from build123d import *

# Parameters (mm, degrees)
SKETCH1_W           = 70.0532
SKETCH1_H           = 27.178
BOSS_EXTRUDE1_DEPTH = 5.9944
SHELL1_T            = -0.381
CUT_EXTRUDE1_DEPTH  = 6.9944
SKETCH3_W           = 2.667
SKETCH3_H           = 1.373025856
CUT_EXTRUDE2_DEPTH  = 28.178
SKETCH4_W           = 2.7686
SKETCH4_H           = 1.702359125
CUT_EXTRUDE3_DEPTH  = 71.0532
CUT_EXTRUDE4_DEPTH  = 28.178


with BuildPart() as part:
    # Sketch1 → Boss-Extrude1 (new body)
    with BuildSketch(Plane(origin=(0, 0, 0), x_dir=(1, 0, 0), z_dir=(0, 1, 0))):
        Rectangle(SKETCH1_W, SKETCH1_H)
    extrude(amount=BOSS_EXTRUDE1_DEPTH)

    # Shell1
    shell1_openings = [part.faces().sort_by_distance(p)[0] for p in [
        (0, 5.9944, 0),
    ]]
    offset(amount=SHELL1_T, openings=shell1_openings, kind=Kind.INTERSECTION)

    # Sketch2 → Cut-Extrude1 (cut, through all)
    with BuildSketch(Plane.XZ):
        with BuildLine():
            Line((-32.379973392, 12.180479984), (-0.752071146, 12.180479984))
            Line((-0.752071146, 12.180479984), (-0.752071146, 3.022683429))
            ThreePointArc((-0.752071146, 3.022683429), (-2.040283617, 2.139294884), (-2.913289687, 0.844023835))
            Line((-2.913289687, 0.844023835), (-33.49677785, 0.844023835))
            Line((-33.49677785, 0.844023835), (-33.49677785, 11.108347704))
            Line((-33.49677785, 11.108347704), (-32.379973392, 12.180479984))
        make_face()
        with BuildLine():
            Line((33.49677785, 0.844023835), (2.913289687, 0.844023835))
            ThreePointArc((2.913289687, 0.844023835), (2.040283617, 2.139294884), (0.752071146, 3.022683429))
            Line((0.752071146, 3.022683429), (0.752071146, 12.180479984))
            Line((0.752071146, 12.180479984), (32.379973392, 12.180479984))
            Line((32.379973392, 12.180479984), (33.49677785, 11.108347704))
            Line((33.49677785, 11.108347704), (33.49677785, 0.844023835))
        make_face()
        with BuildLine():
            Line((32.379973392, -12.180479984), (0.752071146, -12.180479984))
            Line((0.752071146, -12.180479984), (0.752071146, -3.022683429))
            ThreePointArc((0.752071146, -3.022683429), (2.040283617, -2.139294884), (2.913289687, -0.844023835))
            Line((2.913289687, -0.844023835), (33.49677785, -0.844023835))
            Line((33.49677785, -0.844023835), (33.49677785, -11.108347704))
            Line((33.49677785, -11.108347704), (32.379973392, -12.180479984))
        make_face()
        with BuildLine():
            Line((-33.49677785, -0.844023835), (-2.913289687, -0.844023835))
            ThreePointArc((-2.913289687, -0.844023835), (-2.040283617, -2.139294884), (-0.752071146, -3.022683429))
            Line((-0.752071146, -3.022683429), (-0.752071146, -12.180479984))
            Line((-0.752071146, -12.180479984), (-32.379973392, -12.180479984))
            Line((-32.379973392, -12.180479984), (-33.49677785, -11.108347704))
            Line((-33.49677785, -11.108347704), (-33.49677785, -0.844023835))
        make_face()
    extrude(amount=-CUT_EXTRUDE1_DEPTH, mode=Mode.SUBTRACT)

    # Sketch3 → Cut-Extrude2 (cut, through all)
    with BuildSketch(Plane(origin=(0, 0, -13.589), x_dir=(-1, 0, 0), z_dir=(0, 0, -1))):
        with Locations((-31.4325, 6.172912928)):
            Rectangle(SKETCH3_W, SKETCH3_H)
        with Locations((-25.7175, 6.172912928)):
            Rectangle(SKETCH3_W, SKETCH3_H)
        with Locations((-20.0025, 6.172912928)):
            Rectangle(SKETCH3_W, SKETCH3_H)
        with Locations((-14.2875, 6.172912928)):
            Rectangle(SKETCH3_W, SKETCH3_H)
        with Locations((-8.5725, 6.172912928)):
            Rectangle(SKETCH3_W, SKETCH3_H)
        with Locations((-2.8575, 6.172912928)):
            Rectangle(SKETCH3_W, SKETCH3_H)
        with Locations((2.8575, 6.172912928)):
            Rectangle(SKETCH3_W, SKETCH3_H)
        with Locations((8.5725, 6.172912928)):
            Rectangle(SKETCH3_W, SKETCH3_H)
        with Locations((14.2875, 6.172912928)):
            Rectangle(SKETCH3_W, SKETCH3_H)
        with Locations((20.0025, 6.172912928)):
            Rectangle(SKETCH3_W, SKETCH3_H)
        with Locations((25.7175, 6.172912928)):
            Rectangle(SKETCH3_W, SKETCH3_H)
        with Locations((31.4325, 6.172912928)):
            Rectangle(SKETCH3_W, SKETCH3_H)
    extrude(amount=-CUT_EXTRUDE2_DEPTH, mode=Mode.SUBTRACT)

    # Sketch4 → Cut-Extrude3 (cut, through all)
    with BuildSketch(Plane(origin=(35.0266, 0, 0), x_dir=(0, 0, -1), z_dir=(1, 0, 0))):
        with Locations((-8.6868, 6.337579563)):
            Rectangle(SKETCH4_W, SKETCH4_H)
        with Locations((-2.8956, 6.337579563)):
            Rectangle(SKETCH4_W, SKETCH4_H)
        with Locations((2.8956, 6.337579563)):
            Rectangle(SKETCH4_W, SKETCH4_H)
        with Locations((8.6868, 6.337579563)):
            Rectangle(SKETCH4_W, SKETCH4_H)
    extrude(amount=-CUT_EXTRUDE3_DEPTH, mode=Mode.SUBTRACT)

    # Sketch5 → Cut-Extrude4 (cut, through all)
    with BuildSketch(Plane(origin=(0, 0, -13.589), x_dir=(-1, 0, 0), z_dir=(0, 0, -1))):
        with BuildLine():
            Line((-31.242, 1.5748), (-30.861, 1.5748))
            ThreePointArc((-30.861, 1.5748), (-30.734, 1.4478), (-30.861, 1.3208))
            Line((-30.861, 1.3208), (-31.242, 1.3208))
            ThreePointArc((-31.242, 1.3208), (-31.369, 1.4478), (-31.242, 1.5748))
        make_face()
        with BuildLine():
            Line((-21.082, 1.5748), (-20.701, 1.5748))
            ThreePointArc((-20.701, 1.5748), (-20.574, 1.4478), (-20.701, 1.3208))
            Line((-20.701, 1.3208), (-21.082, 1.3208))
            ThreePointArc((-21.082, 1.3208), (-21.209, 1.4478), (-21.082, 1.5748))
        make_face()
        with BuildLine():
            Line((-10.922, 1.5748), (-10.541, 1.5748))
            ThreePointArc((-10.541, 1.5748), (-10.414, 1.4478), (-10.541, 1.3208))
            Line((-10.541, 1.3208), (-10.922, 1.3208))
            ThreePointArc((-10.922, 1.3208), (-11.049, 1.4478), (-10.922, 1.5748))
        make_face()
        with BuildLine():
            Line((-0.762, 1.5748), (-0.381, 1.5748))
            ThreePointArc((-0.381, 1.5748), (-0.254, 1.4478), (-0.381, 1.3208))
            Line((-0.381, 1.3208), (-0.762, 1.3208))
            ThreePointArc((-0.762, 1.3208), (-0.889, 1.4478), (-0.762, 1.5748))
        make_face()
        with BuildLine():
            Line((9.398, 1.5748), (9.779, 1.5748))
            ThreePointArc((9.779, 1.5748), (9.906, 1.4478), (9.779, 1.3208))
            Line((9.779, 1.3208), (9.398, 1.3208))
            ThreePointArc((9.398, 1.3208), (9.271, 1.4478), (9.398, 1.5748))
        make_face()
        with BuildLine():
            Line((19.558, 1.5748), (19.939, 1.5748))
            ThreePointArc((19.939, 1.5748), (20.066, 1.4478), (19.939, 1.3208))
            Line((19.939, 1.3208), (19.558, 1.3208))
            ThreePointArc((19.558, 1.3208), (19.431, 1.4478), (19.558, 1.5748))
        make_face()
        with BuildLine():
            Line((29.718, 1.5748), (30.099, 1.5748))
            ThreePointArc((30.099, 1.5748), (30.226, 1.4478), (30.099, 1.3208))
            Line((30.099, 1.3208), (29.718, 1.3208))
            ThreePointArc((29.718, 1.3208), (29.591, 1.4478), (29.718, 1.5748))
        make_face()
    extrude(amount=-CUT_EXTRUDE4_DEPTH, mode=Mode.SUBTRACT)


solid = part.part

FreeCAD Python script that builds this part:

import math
import FreeCAD as App
import Part
import Sketcher
from FreeCAD import Vector
Q = App.Units.Quantity


def faces_at(feature, points):
    """Names of the faces that lie closest to the given points."""
    faces = feature.Shape.Faces
    near = lambda p: min(range(len(faces)), key=lambda i: faces[i].distToShape(Part.Vertex(*p))[0])
    return sorted({f"Face{near(p) + 1}" for p in points})


def add_polygon(sketch, points):
    """Adds a closed chain of lines whose ends are joined by coincident constraints."""
    first, n = sketch.GeometryCount, len(points)
    for a, b in zip(points, points[1:] + points[:1]):
        sketch.addGeometry(Part.LineSegment(App.Vector(*a, 0), App.Vector(*b, 0)), False)
    for i in range(n):
        sketch.addConstraint(Sketcher.Constraint("Coincident", first + i, 2, first + (i + 1) % n, 1))

doc = App.newDocument("Part")
body = doc.addObject("PartDesign::Body", "Body")

sketch1 = body.newObject("Sketcher::SketchObject", "Sketch")
sketch1.AttachmentSupport = (doc.getObject("XZ_Plane"), [""])
sketch1.MapMode = "FlatFace"
add_polygon(sketch1, [(-35.0266, -13.589), (-35.0266, 13.589), (35.0266, 13.589), (35.0266, -13.589)])
sketch1.addConstraint(Sketcher.Constraint("Vertical", 0))
sketch1.addConstraint(Sketcher.Constraint("Horizontal", 1))
sketch1.addConstraint(Sketcher.Constraint("Vertical", 2))
sketch1.addConstraint(Sketcher.Constraint("Horizontal", 3))
sketch1.addConstraint(Sketcher.Constraint("Symmetric", 0, 2, 2, 2, -1, 1))
sketch1.addConstraint(Sketcher.Constraint("DistanceY", 0, 1, 0, 2, Q("1.07 in")))
sketch1.addConstraint(Sketcher.Constraint("DistanceX", 1, 1, 1, 2, Q("2.758 in")))
pad1 = body.newObject("PartDesign::Pad", "Pad")
pad1.Profile = sketch1
pad1.Length = Q("0.236 in")
pad1.Reversed = True
doc.recompute()

thickness = body.newObject("PartDesign::Thickness", "Thickness")
thickness.Base = (pad1, faces_at(pad1, [(0, 5.994, 0)]))
thickness.Value = Q("0.015 in")
thickness.Reversed = True
thickness.Join = "Intersection"

sketch2 = body.newObject("Sketcher::SketchObject", "Sketch001")
sketch2.AttachmentSupport = (doc.getObject("XZ_Plane"), [""])
sketch2.MapMode = "FlatFace"
sketch2.addGeometry(Part.LineSegment(Vector(-0.752071, 12.18048, 0), Vector(-32.379973, 12.18048, 0)), False)
sketch2.addGeometry(Part.LineSegment(Vector(-32.379973, 12.18048, 0), Vector(-33.496778, 11.108348, 0)), False)
sketch2.addGeometry(Part.LineSegment(Vector(-33.496778, 11.108348, 0), Vector(-33.496778, 0.844024, 0)), False)
sketch2.addGeometry(Part.LineSegment(Vector(-33.496778, 0.844024, 0), Vector(-2.91329, 0.844024, 0)), False)
sketch2.addGeometry(Part.ArcOfCircle(Part.Circle(Vector(0.921469, -0.798747, 0), Vector(0, 0, 1), 4.171818), math.radians(113.650313), math.radians(156.810204)), False)
sketch2.addGeometry(Part.LineSegment(Vector(-0.752071, 3.022683, 0), Vector(-0.752071, 12.18048, 0)), False)
sketch2.addGeometry(Part.LineSegment(Vector(2.91329, 0.844024, 0), Vector(33.496778, 0.844024, 0)), False)
sketch2.addGeometry(Part.LineSegment(Vector(33.496778, 0.844024, 0), Vector(33.496778, 11.108348, 0)), False)
sketch2.addGeometry(Part.LineSegment(Vector(33.496778, 11.108348, 0), Vector(32.379973, 12.18048, 0)), False)
sketch2.addGeometry(Part.LineSegment(Vector(32.379973, 12.18048, 0), Vector(0.752071, 12.18048, 0)), False)
sketch2.addGeometry(Part.LineSegment(Vector(0.752071, 12.18048, 0), Vector(0.752071, 3.022683, 0)), False)
sketch2.addGeometry(Part.ArcOfCircle(Part.Circle(Vector(-0.921469, -0.798747, 0), Vector(0, 0, 1), 4.171818), math.radians(23.189796), math.radians(66.349687)), False)
sketch2.addGeometry(Part.LineSegment(Vector(0.752071, -12.18048, 0), Vector(32.379973, -12.18048, 0)), False)
sketch2.addGeometry(Part.LineSegment(Vector(32.379973, -12.18048, 0), Vector(33.496778, -11.108348, 0)), False)
sketch2.addGeometry(Part.LineSegment(Vector(33.496778, -11.108348, 0), Vector(33.496778, -0.844024, 0)), False)
sketch2.addGeometry(Part.LineSegment(Vector(33.496778, -0.844024, 0), Vector(2.91329, -0.844024, 0)), False)
sketch2.addGeometry(Part.ArcOfCircle(Part.Circle(Vector(-0.921469, 0.798747, 0), Vector(0, 0, 1), 4.171818), math.radians(-66.349687), math.radians(-23.189796)), False)
sketch2.addGeometry(Part.LineSegment(Vector(0.752071, -3.022683, 0), Vector(0.752071, -12.18048, 0)), False)
sketch2.addGeometry(Part.LineSegment(Vector(-2.91329, -0.844024, 0), Vector(-33.496778, -0.844024, 0)), False)
sketch2.addGeometry(Part.LineSegment(Vector(-33.496778, -0.844024, 0), Vector(-33.496778, -11.108348, 0)), False)
sketch2.addGeometry(Part.LineSegment(Vector(-33.496778, -11.108348, 0), Vector(-32.379973, -12.18048, 0)), False)
sketch2.addGeometry(Part.LineSegment(Vector(-32.379973, -12.18048, 0), Vector(-0.752071, -12.18048, 0)), False)
sketch2.addGeometry(Part.LineSegment(Vector(-0.752071, -12.18048, 0), Vector(-0.752071, -3.022683, 0)), False)
sketch2.addGeometry(Part.ArcOfCircle(Part.Circle(Vector(0.921469, 0.798747, 0), Vector(0, 0, 1), 4.171818), math.radians(-156.810204), math.radians(-113.650313)), False)
sketch2.addConstraint(Sketcher.Constraint("Coincident", 0, 2, 1, 1))
sketch2.addConstraint(Sketcher.Constraint("Coincident", 1, 2, 2, 1))
sketch2.addConstraint(Sketcher.Constraint("Coincident", 2, 2, 3, 1))
sketch2.addConstraint(Sketcher.Constraint("Coincident", 3, 2, 4, 2))
sketch2.addConstraint(Sketcher.Constraint("Coincident", 4, 1, 5, 1))
sketch2.addConstraint(Sketcher.Constraint("Coincident", 5, 2, 0, 1))
sketch2.addConstraint(Sketcher.Constraint("Coincident", 6, 2, 7, 1))
sketch2.addConstraint(Sketcher.Constraint("Coincident", 7, 2, 8, 1))
sketch2.addConstraint(Sketcher.Constraint("Coincident", 8, 2, 9, 1))
sketch2.addConstraint(Sketcher.Constraint("Coincident", 9, 2, 10, 1))
sketch2.addConstraint(Sketcher.Constraint("Coincident", 10, 2, 11, 2))
sketch2.addConstraint(Sketcher.Constraint("Coincident", 11, 1, 6, 1))
sketch2.addConstraint(Sketcher.Constraint("Coincident", 12, 2, 13, 1))
sketch2.addConstraint(Sketcher.Constraint("Coincident", 13, 2, 14, 1))
sketch2.addConstraint(Sketcher.Constraint("Coincident", 14, 2, 15, 1))
sketch2.addConstraint(Sketcher.Constraint("Coincident", 15, 2, 16, 2))
sketch2.addConstraint(Sketcher.Constraint("Coincident", 16, 1, 17, 1))
sketch2.addConstraint(Sketcher.Constraint("Coincident", 17, 2, 12, 1))
sketch2.addConstraint(Sketcher.Constraint("Coincident", 18, 2, 19, 1))
sketch2.addConstraint(Sketcher.Constraint("Coincident", 19, 2, 20, 1))
sketch2.addConstraint(Sketcher.Constraint("Coincident", 20, 2, 21, 1))
sketch2.addConstraint(Sketcher.Constraint("Coincident", 21, 2, 22, 1))
sketch2.addConstraint(Sketcher.Constraint("Coincident", 22, 2, 23, 2))
sketch2.addConstraint(Sketcher.Constraint("Coincident", 23, 1, 18, 1))
sketch2.addConstraint(Sketcher.Constraint("Horizontal", 0))
sketch2.addConstraint(Sketcher.Constraint("Vertical", 2))
sketch2.addConstraint(Sketcher.Constraint("Horizontal", 3))
sketch2.addConstraint(Sketcher.Constraint("Vertical", 5))
sketch2.addConstraint(Sketcher.Constraint("Horizontal", 6))
sketch2.addConstraint(Sketcher.Constraint("Vertical", 7))
sketch2.addConstraint(Sketcher.Constraint("Horizontal", 9))
sketch2.addConstraint(Sketcher.Constraint("Vertical", 10))
sketch2.addConstraint(Sketcher.Constraint("Horizontal", 12))
sketch2.addConstraint(Sketcher.Constraint("Vertical", 14))
sketch2.addConstraint(Sketcher.Constraint("Horizontal", 15))
sketch2.addConstraint(Sketcher.Constraint("Vertical", 17))
sketch2.addConstraint(Sketcher.Constraint("Horizontal", 18))
sketch2.addConstraint(Sketcher.Constraint("Vertical", 19))
sketch2.addConstraint(Sketcher.Constraint("Horizontal", 21))
sketch2.addConstraint(Sketcher.Constraint("Vertical", 22))
sketch2.addConstraint(Sketcher.Constraint("Equal", 4, 11))
sketch2.addConstraint(Sketcher.Constraint("Equal", 11, 16))
sketch2.addConstraint(Sketcher.Constraint("Equal", 16, 23))
sketch2.addConstraint(Sketcher.Constraint("Symmetric", 4, 3, 16, 3, -1, 1))
sketch2.addConstraint(Sketcher.Constraint("Symmetric", 11, 3, 23, 3, -1, 1))
sketch2.addConstraint(Sketcher.Constraint("Symmetric", 0, 2, 12, 2, -1, 1))
sketch2.addConstraint(Sketcher.Constraint("Symmetric", 1, 2, 13, 2, -1, 1))
sketch2.addConstraint(Sketcher.Constraint("Symmetric", 6, 2, 18, 2, -1, 1))
sketch2.addConstraint(Sketcher.Constraint("Symmetric", 8, 2, 20, 2, -1, 1))
sketch2.addConstraint(Sketcher.Constraint("Symmetric", 4, 3, 11, 3, -2))
sketch2.addConstraint(Sketcher.Constraint("Symmetric", 2, 2, 6, 2, -2))
sketch2.addConstraint(Sketcher.Constraint("Symmetric", 0, 2, 8, 2, -2))
sketch2.addConstraint(Sketcher.Constraint("Parallel", 8, 20))
sketch2.addConstraint(Sketcher.Constraint("Horizontal", 1, 2, 7, 2))
sketch2.addConstraint(Sketcher.Constraint("Horizontal", 4, 1, 10, 2))
sketch2.addConstraint(Sketcher.Constraint("Horizontal", 15, 2, 18, 2))
sketch2.addConstraint(Sketcher.Constraint("Horizontal", 16, 1, 22, 2))
sketch2.addConstraint(Sketcher.Constraint("Vertical", 10, 2, 16, 1))
sketch2.addConstraint(Sketcher.Constraint("Radius", 4, Q("4.171818 mm")))
sketch2.addConstraint(Sketcher.Constraint("DistanceX", 3, 1, 3, 2, Q("30.583488 mm")))
sketch2.addConstraint(Sketcher.Constraint("DistanceY", 16, 3, 1, 2, Q("10.3096 mm")))
sketch2.addConstraint(Sketcher.Constraint("DistanceX", 0, 2, 0, 1, Q("31.627902 mm")))
sketch2.addConstraint(Sketcher.Constraint("DistanceY", 2, 2, 2, 1, Q("10.264324 mm")))
sketch2.addConstraint(Sketcher.Constraint("DistanceY", 5, 1, 5, 2, Q("9.157797 mm")))
sketch2.addConstraint(Sketcher.Constraint("DistanceX", -1, 1, 4, 3, Q("0.921469 mm")))
sketch2.addConstraint(Sketcher.Constraint("DistanceY", -1, 1, 0, 2, Q("12.18048 mm")))
sketch2.addConstraint(Sketcher.Constraint("DistanceX", 3, 2, -1, 1, Q("2.91329 mm")))
pocket1 = body.newObject("PartDesign::Pocket", "Pocket")
pocket1.Profile = sketch2
pocket1.Type = "ThroughAll"

sketch3 = body.newObject("Sketcher::SketchObject", "Sketch002")
sketch3.AttachmentSupport = (doc.getObject("XY_Plane"), [""])
sketch3.MapMode = "FlatFace"
sketch3.AttachmentOffset = App.Placement(Vector(0, 0, -0.535 * 25.4), App.Rotation())
add_polygon(sketch3, [(32.766, 6.859426), (32.766, 5.4864), (30.099, 5.4864), (30.099, 6.859426)])
add_polygon(sketch3, [(27.051, 6.859426), (27.051, 5.4864), (24.384, 5.4864), (24.384, 6.859426)])
add_polygon(sketch3, [(21.336, 6.859426), (21.336, 5.4864), (18.669, 5.4864), (18.669, 6.859426)])
add_polygon(sketch3, [(15.621, 6.859426), (15.621, 5.4864), (12.954, 5.4864), (12.954, 6.859426)])
add_polygon(sketch3, [(9.906, 6.859426), (9.906, 5.4864), (7.239, 5.4864), (7.239, 6.859426)])
add_polygon(sketch3, [(4.191, 6.859426), (4.191, 5.4864), (1.524, 5.4864), (1.524, 6.859426)])
add_polygon(sketch3, [(-1.524, 6.859426), (-1.524, 5.4864), (-4.191, 5.4864), (-4.191, 6.859426)])
add_polygon(sketch3, [(-7.239, 6.859426), (-7.239, 5.4864), (-9.906, 5.4864), (-9.906, 6.859426)])
add_polygon(sketch3, [(-12.954, 6.859426), (-12.954, 5.4864), (-15.621, 5.4864), (-15.621, 6.859426)])
add_polygon(sketch3, [(-18.669, 6.859426), (-18.669, 5.4864), (-21.336, 5.4864), (-21.336, 6.859426)])
add_polygon(sketch3, [(-24.384, 6.859426), (-24.384, 5.4864), (-27.051, 5.4864), (-27.051, 6.859426)])
add_polygon(sketch3, [(-30.099, 6.859426), (-30.099, 5.4864), (-32.766, 5.4864), (-32.766, 6.859426)])
sketch3.addConstraint(Sketcher.Constraint("Vertical", 0))
sketch3.addConstraint(Sketcher.Constraint("Horizontal", 1))
sketch3.addConstraint(Sketcher.Constraint("Vertical", 2))
sketch3.addConstraint(Sketcher.Constraint("Horizontal", 3))
sketch3.addConstraint(Sketcher.Constraint("Vertical", 4))
sketch3.addConstraint(Sketcher.Constraint("Horizontal", 5))
sketch3.addConstraint(Sketcher.Constraint("Vertical", 6))
sketch3.addConstraint(Sketcher.Constraint("Horizontal", 7))
sketch3.addConstraint(Sketcher.Constraint("Vertical", 8))
sketch3.addConstraint(Sketcher.Constraint("Horizontal", 9))
sketch3.addConstraint(Sketcher.Constraint("Vertical", 10))
sketch3.addConstraint(Sketcher.Constraint("Horizontal", 11))
sketch3.addConstraint(Sketcher.Constraint("Vertical", 12))
sketch3.addConstraint(Sketcher.Constraint("Horizontal", 13))
sketch3.addConstraint(Sketcher.Constraint("Vertical", 14))
sketch3.addConstraint(Sketcher.Constraint("Horizontal", 15))
sketch3.addConstraint(Sketcher.Constraint("Vertical", 16))
sketch3.addConstraint(Sketcher.Constraint("Horizontal", 17))
sketch3.addConstraint(Sketcher.Constraint("Vertical", 18))
sketch3.addConstraint(Sketcher.Constraint("Horizontal", 19))
sketch3.addConstraint(Sketcher.Constraint("Vertical", 20))
sketch3.addConstraint(Sketcher.Constraint("Horizontal", 21))
sketch3.addConstraint(Sketcher.Constraint("Vertical", 22))
sketch3.addConstraint(Sketcher.Constraint("Horizontal", 23))
sketch3.addConstraint(Sketcher.Constraint("Vertical", 24))
sketch3.addConstraint(Sketcher.Constraint("Horizontal", 25))
sketch3.addConstraint(Sketcher.Constraint("Vertical", 26))
sketch3.addConstraint(Sketcher.Constraint("Horizontal", 27))
sketch3.addConstraint(Sketcher.Constraint("Vertical", 28))
sketch3.addConstraint(Sketcher.Constraint("Horizontal", 29))
sketch3.addConstraint(Sketcher.Constraint("Vertical", 30))
sketch3.addConstraint(Sketcher.Constraint("Horizontal", 31))
sketch3.addConstraint(Sketcher.Constraint("Vertical", 32))
sketch3.addConstraint(Sketcher.Constraint("Horizontal", 33))
sketch3.addConstraint(Sketcher.Constraint("Vertical", 34))
sketch3.addConstraint(Sketcher.Constraint("Horizontal", 35))
sketch3.addConstraint(Sketcher.Constraint("Vertical", 36))
sketch3.addConstraint(Sketcher.Constraint("Horizontal", 37))
sketch3.addConstraint(Sketcher.Constraint("Vertical", 38))
sketch3.addConstraint(Sketcher.Constraint("Horizontal", 39))
sketch3.addConstraint(Sketcher.Constraint("Vertical", 40))
sketch3.addConstraint(Sketcher.Constraint("Horizontal", 41))
sketch3.addConstraint(Sketcher.Constraint("Vertical", 42))
sketch3.addConstraint(Sketcher.Constraint("Horizontal", 43))
sketch3.addConstraint(Sketcher.Constraint("Vertical", 44))
sketch3.addConstraint(Sketcher.Constraint("Horizontal", 45))
sketch3.addConstraint(Sketcher.Constraint("Vertical", 46))
sketch3.addConstraint(Sketcher.Constraint("Horizontal", 47))
sketch3.addConstraint(Sketcher.Constraint("Symmetric", 21, 2, 24, 2, -2))
sketch3.addConstraint(Sketcher.Constraint("Symmetric", 23, 2, 26, 2, -2))
sketch3.addConstraint(Sketcher.Constraint("Symmetric", 17, 2, 28, 2, -2))
sketch3.addConstraint(Sketcher.Constraint("Symmetric", 19, 2, 30, 2, -2))
sketch3.addConstraint(Sketcher.Constraint("Symmetric", 13, 2, 32, 2, -2))
sketch3.addConstraint(Sketcher.Constraint("Symmetric", 15, 2, 34, 2, -2))
sketch3.addConstraint(Sketcher.Constraint("Symmetric", 9, 2, 36, 2, -2))
sketch3.addConstraint(Sketcher.Constraint("Symmetric", 11, 2, 38, 2, -2))
sketch3.addConstraint(Sketcher.Constraint("Symmetric", 5, 2, 40, 2, -2))
sketch3.addConstraint(Sketcher.Constraint("Symmetric", 7, 2, 42, 2, -2))
sketch3.addConstraint(Sketcher.Constraint("Symmetric", 1, 2, 44, 2, -2))
sketch3.addConstraint(Sketcher.Constraint("Symmetric", 3, 2, 46, 2, -2))
sketch3.addConstraint(Sketcher.Constraint("Horizontal", 1, 2, 4, 2))
sketch3.addConstraint(Sketcher.Constraint("Horizontal", 3, 2, 6, 2))
sketch3.addConstraint(Sketcher.Constraint("Horizontal", 5, 2, 8, 2))
sketch3.addConstraint(Sketcher.Constraint("Horizontal", 7, 2, 10, 2))
sketch3.addConstraint(Sketcher.Constraint("Horizontal", 9, 2, 12, 2))
sketch3.addConstraint(Sketcher.Constraint("Horizontal", 11, 2, 14, 2))
sketch3.addConstraint(Sketcher.Constraint("Horizontal", 13, 2, 16, 2))
sketch3.addConstraint(Sketcher.Constraint("Horizontal", 15, 2, 18, 2))
sketch3.addConstraint(Sketcher.Constraint("Horizontal", 17, 2, 20, 2))
sketch3.addConstraint(Sketcher.Constraint("Horizontal", 19, 2, 22, 2))
sketch3.addConstraint(Sketcher.Constraint("Equal", 3, 5))
sketch3.addConstraint(Sketcher.Constraint("Equal", 7, 9))
sketch3.addConstraint(Sketcher.Constraint("Equal", 11, 13))
sketch3.addConstraint(Sketcher.Constraint("Equal", 15, 17))
sketch3.addConstraint(Sketcher.Constraint("Equal", 19, 21))
sketch3.addConstraint(Sketcher.Constraint("DistanceX", 1, 2, 1, 1, Q("0.105 in")))
sketch3.addConstraint(Sketcher.Constraint("DistanceX", -1, 1, 0, 2, Q("1.29 in")))
sketch3.addConstraint(Sketcher.Constraint("DistanceX", -1, 1, 5, 2, Q("0.96 in")))
sketch3.addConstraint(Sketcher.Constraint("DistanceX", -1, 1, 8, 2, Q("0.84 in")))
sketch3.addConstraint(Sketcher.Constraint("DistanceX", -1, 1, 13, 2, Q("0.51 in")))
sketch3.addConstraint(Sketcher.Constraint("DistanceX", -1, 1, 16, 2, Q("0.39 in")))
sketch3.addConstraint(Sketcher.Constraint("DistanceX", -1, 1, 21, 2, Q("0.06 in")))
sketch3.addConstraint(Sketcher.Constraint("DistanceY", -1, 1, 0, 2, Q("0.216 in")))
sketch3.addConstraint(Sketcher.Constraint("DistanceY", 0, 2, 0, 1, Q("1.373026 mm")))
pocket2 = body.newObject("PartDesign::Pocket", "Pocket001")
pocket2.Profile = sketch3
pocket2.Type = "ThroughAll"
pocket2.Reversed = True

sketch4 = body.newObject("Sketcher::SketchObject", "Sketch003")
sketch4.AttachmentSupport = (doc.getObject("YZ_Plane"), [""])
sketch4.MapMode = "FlatFace"
sketch4.AttachmentOffset = App.Placement(Vector(0, 0, 1.379 * 25.4), App.Rotation())
add_polygon(sketch4, [(7.188759, 10.0711), (5.4864, 10.0711), (5.4864, 7.3025), (7.188759, 7.3025)])
add_polygon(sketch4, [(7.188759, 4.2799), (5.4864, 4.2799), (5.4864, 1.5113), (7.188759, 1.5113)])
add_polygon(sketch4, [(7.188759, -1.5113), (5.4864, -1.5113), (5.4864, -4.2799), (7.188759, -4.2799)])
add_polygon(sketch4, [(7.188759, -7.3025), (5.4864, -7.3025), (5.4864, -10.0711), (7.188759, -10.0711)])
sketch4.addConstraint(Sketcher.Constraint("Horizontal", 0))
sketch4.addConstraint(Sketcher.Constraint("Vertical", 1))
sketch4.addConstraint(Sketcher.Constraint("Horizontal", 2))
sketch4.addConstraint(Sketcher.Constraint("Vertical", 3))
sketch4.addConstraint(Sketcher.Constraint("Horizontal", 4))
sketch4.addConstraint(Sketcher.Constraint("Vertical", 5))
sketch4.addConstraint(Sketcher.Constraint("Horizontal", 6))
sketch4.addConstraint(Sketcher.Constraint("Vertical", 7))
sketch4.addConstraint(Sketcher.Constraint("Horizontal", 8))
sketch4.addConstraint(Sketcher.Constraint("Vertical", 9))
sketch4.addConstraint(Sketcher.Constraint("Horizontal", 10))
sketch4.addConstraint(Sketcher.Constraint("Vertical", 11))
sketch4.addConstraint(Sketcher.Constraint("Horizontal", 12))
sketch4.addConstraint(Sketcher.Constraint("Vertical", 13))
sketch4.addConstraint(Sketcher.Constraint("Horizontal", 14))
sketch4.addConstraint(Sketcher.Constraint("Vertical", 15))
sketch4.addConstraint(Sketcher.Constraint("Symmetric", 5, 2, 8, 2, -1))
sketch4.addConstraint(Sketcher.Constraint("Symmetric", 7, 2, 10, 2, -1))
sketch4.addConstraint(Sketcher.Constraint("Symmetric", 1, 2, 12, 2, -1))
sketch4.addConstraint(Sketcher.Constraint("Symmetric", 3, 2, 14, 2, -1))
sketch4.addConstraint(Sketcher.Constraint("Vertical", 1, 2, 4, 2))
sketch4.addConstraint(Sketcher.Constraint("Vertical", 3, 2, 6, 2))
sketch4.addConstraint(Sketcher.Constraint("Equal", 3, 5))
sketch4.addConstraint(Sketcher.Constraint("DistanceY", 1, 2, 1, 1, Q("0.109 in")))
sketch4.addConstraint(Sketcher.Constraint("DistanceX", -1, 1, 0, 2, Q("0.216 in")))
sketch4.addConstraint(Sketcher.Constraint("DistanceY", 4, 2, 1, 2, Q("0.119 in")))
sketch4.addConstraint(Sketcher.Constraint("DistanceY", 8, 2, 5, 2, Q("0.119 in")))
sketch4.addConstraint(Sketcher.Constraint("DistanceX", 0, 2, 0, 1, Q("1.702359 mm")))
pocket3 = body.newObject("PartDesign::Pocket", "Pocket002")
pocket3.Profile = sketch4
pocket3.Type = "ThroughAll"

sketch5 = body.newObject("Sketcher::SketchObject", "Sketch004")
sketch5.AttachmentSupport = (doc.getObject("XY_Plane"), [""])
sketch5.MapMode = "FlatFace"
sketch5.AttachmentOffset = App.Placement(Vector(0, 0, -0.535 * 25.4), App.Rotation())
sketch5.addGeometry(Part.LineSegment(Vector(30.861, 1.5748, 0), Vector(31.242, 1.5748, 0)), False)
sketch5.addGeometry(Part.ArcOfCircle(Part.Circle(Vector(31.242, 1.4478, 0), Vector(0, 0, 1), 0.127), math.radians(-90), math.radians(90)), False)
sketch5.addGeometry(Part.LineSegment(Vector(31.242, 1.3208, 0), Vector(30.861, 1.3208, 0)), False)
sketch5.addGeometry(Part.ArcOfCircle(Part.Circle(Vector(30.861, 1.4478, 0), Vector(0, 0, 1), 0.127), math.radians(90), math.radians(270)), False)
sketch5.addGeometry(Part.LineSegment(Vector(20.701, 1.5748, 0), Vector(21.082, 1.5748, 0)), False)
sketch5.addGeometry(Part.ArcOfCircle(Part.Circle(Vector(21.082, 1.4478, 0), Vector(0, 0, 1), 0.127), math.radians(-90), math.radians(90)), False)
sketch5.addGeometry(Part.LineSegment(Vector(21.082, 1.3208, 0), Vector(20.701, 1.3208, 0)), False)
sketch5.addGeometry(Part.ArcOfCircle(Part.Circle(Vector(20.701, 1.4478, 0), Vector(0, 0, 1), 0.127), math.radians(90), math.radians(270)), False)
sketch5.addGeometry(Part.LineSegment(Vector(10.541, 1.5748, 0), Vector(10.922, 1.5748, 0)), False)
sketch5.addGeometry(Part.ArcOfCircle(Part.Circle(Vector(10.922, 1.4478, 0), Vector(0, 0, 1), 0.127), math.radians(-90), math.radians(90)), False)
sketch5.addGeometry(Part.LineSegment(Vector(10.922, 1.3208, 0), Vector(10.541, 1.3208, 0)), False)
sketch5.addGeometry(Part.ArcOfCircle(Part.Circle(Vector(10.541, 1.4478, 0), Vector(0, 0, 1), 0.127), math.radians(90), math.radians(270)), False)
sketch5.addGeometry(Part.LineSegment(Vector(0.381, 1.5748, 0), Vector(0.762, 1.5748, 0)), False)
sketch5.addGeometry(Part.ArcOfCircle(Part.Circle(Vector(0.762, 1.4478, 0), Vector(0, 0, 1), 0.127), math.radians(-90), math.radians(90)), False)
sketch5.addGeometry(Part.LineSegment(Vector(0.762, 1.3208, 0), Vector(0.381, 1.3208, 0)), False)
sketch5.addGeometry(Part.ArcOfCircle(Part.Circle(Vector(0.381, 1.4478, 0), Vector(0, 0, 1), 0.127), math.radians(90), math.radians(270)), False)
sketch5.addGeometry(Part.LineSegment(Vector(-9.779, 1.5748, 0), Vector(-9.398, 1.5748, 0)), False)
sketch5.addGeometry(Part.ArcOfCircle(Part.Circle(Vector(-9.398, 1.4478, 0), Vector(0, 0, 1), 0.127), math.radians(-90), math.radians(90)), False)
sketch5.addGeometry(Part.LineSegment(Vector(-9.398, 1.3208, 0), Vector(-9.779, 1.3208, 0)), False)
sketch5.addGeometry(Part.ArcOfCircle(Part.Circle(Vector(-9.779, 1.4478, 0), Vector(0, 0, 1), 0.127), math.radians(90), math.radians(270)), False)
sketch5.addGeometry(Part.LineSegment(Vector(-19.939, 1.5748, 0), Vector(-19.558, 1.5748, 0)), False)
sketch5.addGeometry(Part.ArcOfCircle(Part.Circle(Vector(-19.558, 1.4478, 0), Vector(0, 0, 1), 0.127), math.radians(-90), math.radians(90)), False)
sketch5.addGeometry(Part.LineSegment(Vector(-19.558, 1.3208, 0), Vector(-19.939, 1.3208, 0)), False)
sketch5.addGeometry(Part.ArcOfCircle(Part.Circle(Vector(-19.939, 1.4478, 0), Vector(0, 0, 1), 0.127), math.radians(90), math.radians(270)), False)
sketch5.addGeometry(Part.LineSegment(Vector(-30.099, 1.5748, 0), Vector(-29.718, 1.5748, 0)), False)
sketch5.addGeometry(Part.ArcOfCircle(Part.Circle(Vector(-29.718, 1.4478, 0), Vector(0, 0, 1), 0.127), math.radians(-90), math.radians(90)), False)
sketch5.addGeometry(Part.LineSegment(Vector(-29.718, 1.3208, 0), Vector(-30.099, 1.3208, 0)), False)
sketch5.addGeometry(Part.ArcOfCircle(Part.Circle(Vector(-30.099, 1.4478, 0), Vector(0, 0, 1), 0.127), math.radians(90), math.radians(270)), False)
sketch5.addConstraint(Sketcher.Constraint("Tangent", 0, 2, 1, 2))
sketch5.addConstraint(Sketcher.Constraint("Tangent", 1, 1, 2, 1))
sketch5.addConstraint(Sketcher.Constraint("Tangent", 2, 2, 3, 2))
sketch5.addConstraint(Sketcher.Constraint("Tangent", 3, 1, 0, 1))
sketch5.addConstraint(Sketcher.Constraint("Tangent", 4, 2, 5, 2))
sketch5.addConstraint(Sketcher.Constraint("Tangent", 5, 1, 6, 1))
sketch5.addConstraint(Sketcher.Constraint("Tangent", 6, 2, 7, 2))
sketch5.addConstraint(Sketcher.Constraint("Tangent", 7, 1, 4, 1))
sketch5.addConstraint(Sketcher.Constraint("Tangent", 8, 2, 9, 2))
sketch5.addConstraint(Sketcher.Constraint("Tangent", 9, 1, 10, 1))
sketch5.addConstraint(Sketcher.Constraint("Tangent", 10, 2, 11, 2))
sketch5.addConstraint(Sketcher.Constraint("Tangent", 11, 1, 8, 1))
sketch5.addConstraint(Sketcher.Constraint("Tangent", 12, 2, 13, 2))
sketch5.addConstraint(Sketcher.Constraint("Tangent", 13, 1, 14, 1))
sketch5.addConstraint(Sketcher.Constraint("Tangent", 14, 2, 15, 2))
sketch5.addConstraint(Sketcher.Constraint("Tangent", 15, 1, 12, 1))
sketch5.addConstraint(Sketcher.Constraint("Tangent", 16, 2, 17, 2))
sketch5.addConstraint(Sketcher.Constraint("Tangent", 17, 1, 18, 1))
sketch5.addConstraint(Sketcher.Constraint("Tangent", 18, 2, 19, 2))
sketch5.addConstraint(Sketcher.Constraint("Tangent", 19, 1, 16, 1))
sketch5.addConstraint(Sketcher.Constraint("Tangent", 20, 2, 21, 2))
sketch5.addConstraint(Sketcher.Constraint("Tangent", 21, 1, 22, 1))
sketch5.addConstraint(Sketcher.Constraint("Tangent", 22, 2, 23, 2))
sketch5.addConstraint(Sketcher.Constraint("Tangent", 23, 1, 20, 1))
sketch5.addConstraint(Sketcher.Constraint("Tangent", 24, 2, 25, 2))
sketch5.addConstraint(Sketcher.Constraint("Tangent", 25, 1, 26, 1))
sketch5.addConstraint(Sketcher.Constraint("Tangent", 26, 2, 27, 2))
sketch5.addConstraint(Sketcher.Constraint("Tangent", 27, 1, 24, 1))
sketch5.addConstraint(Sketcher.Constraint("Horizontal", 0))
sketch5.addConstraint(Sketcher.Constraint("Horizontal", 2))
sketch5.addConstraint(Sketcher.Constraint("Horizontal", 4))
sketch5.addConstraint(Sketcher.Constraint("Horizontal", 6))
sketch5.addConstraint(Sketcher.Constraint("Horizontal", 8))
sketch5.addConstraint(Sketcher.Constraint("Horizontal", 10))
sketch5.addConstraint(Sketcher.Constraint("Horizontal", 12))
sketch5.addConstraint(Sketcher.Constraint("Horizontal", 14))
sketch5.addConstraint(Sketcher.Constraint("Horizontal", 16))
sketch5.addConstraint(Sketcher.Constraint("Horizontal", 18))
sketch5.addConstraint(Sketcher.Constraint("Horizontal", 20))
sketch5.addConstraint(Sketcher.Constraint("Horizontal", 22))
sketch5.addConstraint(Sketcher.Constraint("Horizontal", 24))
sketch5.addConstraint(Sketcher.Constraint("Horizontal", 26))
sketch5.addConstraint(Sketcher.Constraint("Equal", 3, 5))
sketch5.addConstraint(Sketcher.Constraint("Equal", 7, 9))
sketch5.addConstraint(Sketcher.Constraint("Equal", 11, 13))
sketch5.addConstraint(Sketcher.Constraint("Equal", 15, 17))
sketch5.addConstraint(Sketcher.Constraint("Equal", 19, 21))
sketch5.addConstraint(Sketcher.Constraint("Equal", 23, 25))
sketch5.addConstraint(Sketcher.Constraint("Horizontal", 3, 3, 5, 3))
sketch5.addConstraint(Sketcher.Constraint("Horizontal", 7, 3, 9, 3))
sketch5.addConstraint(Sketcher.Constraint("Horizontal", 11, 3, 13, 3))
sketch5.addConstraint(Sketcher.Constraint("Horizontal", 15, 3, 17, 3))
sketch5.addConstraint(Sketcher.Constraint("Horizontal", 19, 3, 21, 3))
sketch5.addConstraint(Sketcher.Constraint("Horizontal", 23, 3, 25, 3))
sketch5.addConstraint(Sketcher.Constraint("Equal", 2, 4))
sketch5.addConstraint(Sketcher.Constraint("Equal", 6, 8))
sketch5.addConstraint(Sketcher.Constraint("Equal", 10, 12))
sketch5.addConstraint(Sketcher.Constraint("Equal", 14, 16))
sketch5.addConstraint(Sketcher.Constraint("Equal", 18, 20))
sketch5.addConstraint(Sketcher.Constraint("Equal", 22, 24))
sketch5.addConstraint(Sketcher.Constraint("Radius", 1, Q("0.005 in")))
sketch5.addConstraint(Sketcher.Constraint("DistanceX", 5, 3, 1, 3, Q("0.4 in")))
sketch5.addConstraint(Sketcher.Constraint("DistanceX", 9, 3, 5, 3, Q("0.4 in")))
sketch5.addConstraint(Sketcher.Constraint("DistanceX", 13, 3, 9, 3, Q("0.4 in")))
sketch5.addConstraint(Sketcher.Constraint("DistanceX", 17, 3, 13, 3, Q("0.4 in")))
sketch5.addConstraint(Sketcher.Constraint("DistanceX", 21, 3, 17, 3, Q("0.4 in")))
sketch5.addConstraint(Sketcher.Constraint("DistanceX", 25, 3, 21, 3, Q("0.4 in")))
sketch5.addConstraint(Sketcher.Constraint("DistanceX", 0, 1, 0, 2, Q("0.015 in")))
sketch5.addConstraint(Sketcher.Constraint("DistanceX", -1, 1, 1, 3, Q("1.23 in")))
sketch5.addConstraint(Sketcher.Constraint("DistanceY", -1, 1, 1, 3, Q("0.057 in")))
pocket4 = body.newObject("PartDesign::Pocket", "Pocket003")
pocket4.Profile = sketch5
pocket4.Type = "ThroughAll"
pocket4.Reversed = True

doc.recompute()
